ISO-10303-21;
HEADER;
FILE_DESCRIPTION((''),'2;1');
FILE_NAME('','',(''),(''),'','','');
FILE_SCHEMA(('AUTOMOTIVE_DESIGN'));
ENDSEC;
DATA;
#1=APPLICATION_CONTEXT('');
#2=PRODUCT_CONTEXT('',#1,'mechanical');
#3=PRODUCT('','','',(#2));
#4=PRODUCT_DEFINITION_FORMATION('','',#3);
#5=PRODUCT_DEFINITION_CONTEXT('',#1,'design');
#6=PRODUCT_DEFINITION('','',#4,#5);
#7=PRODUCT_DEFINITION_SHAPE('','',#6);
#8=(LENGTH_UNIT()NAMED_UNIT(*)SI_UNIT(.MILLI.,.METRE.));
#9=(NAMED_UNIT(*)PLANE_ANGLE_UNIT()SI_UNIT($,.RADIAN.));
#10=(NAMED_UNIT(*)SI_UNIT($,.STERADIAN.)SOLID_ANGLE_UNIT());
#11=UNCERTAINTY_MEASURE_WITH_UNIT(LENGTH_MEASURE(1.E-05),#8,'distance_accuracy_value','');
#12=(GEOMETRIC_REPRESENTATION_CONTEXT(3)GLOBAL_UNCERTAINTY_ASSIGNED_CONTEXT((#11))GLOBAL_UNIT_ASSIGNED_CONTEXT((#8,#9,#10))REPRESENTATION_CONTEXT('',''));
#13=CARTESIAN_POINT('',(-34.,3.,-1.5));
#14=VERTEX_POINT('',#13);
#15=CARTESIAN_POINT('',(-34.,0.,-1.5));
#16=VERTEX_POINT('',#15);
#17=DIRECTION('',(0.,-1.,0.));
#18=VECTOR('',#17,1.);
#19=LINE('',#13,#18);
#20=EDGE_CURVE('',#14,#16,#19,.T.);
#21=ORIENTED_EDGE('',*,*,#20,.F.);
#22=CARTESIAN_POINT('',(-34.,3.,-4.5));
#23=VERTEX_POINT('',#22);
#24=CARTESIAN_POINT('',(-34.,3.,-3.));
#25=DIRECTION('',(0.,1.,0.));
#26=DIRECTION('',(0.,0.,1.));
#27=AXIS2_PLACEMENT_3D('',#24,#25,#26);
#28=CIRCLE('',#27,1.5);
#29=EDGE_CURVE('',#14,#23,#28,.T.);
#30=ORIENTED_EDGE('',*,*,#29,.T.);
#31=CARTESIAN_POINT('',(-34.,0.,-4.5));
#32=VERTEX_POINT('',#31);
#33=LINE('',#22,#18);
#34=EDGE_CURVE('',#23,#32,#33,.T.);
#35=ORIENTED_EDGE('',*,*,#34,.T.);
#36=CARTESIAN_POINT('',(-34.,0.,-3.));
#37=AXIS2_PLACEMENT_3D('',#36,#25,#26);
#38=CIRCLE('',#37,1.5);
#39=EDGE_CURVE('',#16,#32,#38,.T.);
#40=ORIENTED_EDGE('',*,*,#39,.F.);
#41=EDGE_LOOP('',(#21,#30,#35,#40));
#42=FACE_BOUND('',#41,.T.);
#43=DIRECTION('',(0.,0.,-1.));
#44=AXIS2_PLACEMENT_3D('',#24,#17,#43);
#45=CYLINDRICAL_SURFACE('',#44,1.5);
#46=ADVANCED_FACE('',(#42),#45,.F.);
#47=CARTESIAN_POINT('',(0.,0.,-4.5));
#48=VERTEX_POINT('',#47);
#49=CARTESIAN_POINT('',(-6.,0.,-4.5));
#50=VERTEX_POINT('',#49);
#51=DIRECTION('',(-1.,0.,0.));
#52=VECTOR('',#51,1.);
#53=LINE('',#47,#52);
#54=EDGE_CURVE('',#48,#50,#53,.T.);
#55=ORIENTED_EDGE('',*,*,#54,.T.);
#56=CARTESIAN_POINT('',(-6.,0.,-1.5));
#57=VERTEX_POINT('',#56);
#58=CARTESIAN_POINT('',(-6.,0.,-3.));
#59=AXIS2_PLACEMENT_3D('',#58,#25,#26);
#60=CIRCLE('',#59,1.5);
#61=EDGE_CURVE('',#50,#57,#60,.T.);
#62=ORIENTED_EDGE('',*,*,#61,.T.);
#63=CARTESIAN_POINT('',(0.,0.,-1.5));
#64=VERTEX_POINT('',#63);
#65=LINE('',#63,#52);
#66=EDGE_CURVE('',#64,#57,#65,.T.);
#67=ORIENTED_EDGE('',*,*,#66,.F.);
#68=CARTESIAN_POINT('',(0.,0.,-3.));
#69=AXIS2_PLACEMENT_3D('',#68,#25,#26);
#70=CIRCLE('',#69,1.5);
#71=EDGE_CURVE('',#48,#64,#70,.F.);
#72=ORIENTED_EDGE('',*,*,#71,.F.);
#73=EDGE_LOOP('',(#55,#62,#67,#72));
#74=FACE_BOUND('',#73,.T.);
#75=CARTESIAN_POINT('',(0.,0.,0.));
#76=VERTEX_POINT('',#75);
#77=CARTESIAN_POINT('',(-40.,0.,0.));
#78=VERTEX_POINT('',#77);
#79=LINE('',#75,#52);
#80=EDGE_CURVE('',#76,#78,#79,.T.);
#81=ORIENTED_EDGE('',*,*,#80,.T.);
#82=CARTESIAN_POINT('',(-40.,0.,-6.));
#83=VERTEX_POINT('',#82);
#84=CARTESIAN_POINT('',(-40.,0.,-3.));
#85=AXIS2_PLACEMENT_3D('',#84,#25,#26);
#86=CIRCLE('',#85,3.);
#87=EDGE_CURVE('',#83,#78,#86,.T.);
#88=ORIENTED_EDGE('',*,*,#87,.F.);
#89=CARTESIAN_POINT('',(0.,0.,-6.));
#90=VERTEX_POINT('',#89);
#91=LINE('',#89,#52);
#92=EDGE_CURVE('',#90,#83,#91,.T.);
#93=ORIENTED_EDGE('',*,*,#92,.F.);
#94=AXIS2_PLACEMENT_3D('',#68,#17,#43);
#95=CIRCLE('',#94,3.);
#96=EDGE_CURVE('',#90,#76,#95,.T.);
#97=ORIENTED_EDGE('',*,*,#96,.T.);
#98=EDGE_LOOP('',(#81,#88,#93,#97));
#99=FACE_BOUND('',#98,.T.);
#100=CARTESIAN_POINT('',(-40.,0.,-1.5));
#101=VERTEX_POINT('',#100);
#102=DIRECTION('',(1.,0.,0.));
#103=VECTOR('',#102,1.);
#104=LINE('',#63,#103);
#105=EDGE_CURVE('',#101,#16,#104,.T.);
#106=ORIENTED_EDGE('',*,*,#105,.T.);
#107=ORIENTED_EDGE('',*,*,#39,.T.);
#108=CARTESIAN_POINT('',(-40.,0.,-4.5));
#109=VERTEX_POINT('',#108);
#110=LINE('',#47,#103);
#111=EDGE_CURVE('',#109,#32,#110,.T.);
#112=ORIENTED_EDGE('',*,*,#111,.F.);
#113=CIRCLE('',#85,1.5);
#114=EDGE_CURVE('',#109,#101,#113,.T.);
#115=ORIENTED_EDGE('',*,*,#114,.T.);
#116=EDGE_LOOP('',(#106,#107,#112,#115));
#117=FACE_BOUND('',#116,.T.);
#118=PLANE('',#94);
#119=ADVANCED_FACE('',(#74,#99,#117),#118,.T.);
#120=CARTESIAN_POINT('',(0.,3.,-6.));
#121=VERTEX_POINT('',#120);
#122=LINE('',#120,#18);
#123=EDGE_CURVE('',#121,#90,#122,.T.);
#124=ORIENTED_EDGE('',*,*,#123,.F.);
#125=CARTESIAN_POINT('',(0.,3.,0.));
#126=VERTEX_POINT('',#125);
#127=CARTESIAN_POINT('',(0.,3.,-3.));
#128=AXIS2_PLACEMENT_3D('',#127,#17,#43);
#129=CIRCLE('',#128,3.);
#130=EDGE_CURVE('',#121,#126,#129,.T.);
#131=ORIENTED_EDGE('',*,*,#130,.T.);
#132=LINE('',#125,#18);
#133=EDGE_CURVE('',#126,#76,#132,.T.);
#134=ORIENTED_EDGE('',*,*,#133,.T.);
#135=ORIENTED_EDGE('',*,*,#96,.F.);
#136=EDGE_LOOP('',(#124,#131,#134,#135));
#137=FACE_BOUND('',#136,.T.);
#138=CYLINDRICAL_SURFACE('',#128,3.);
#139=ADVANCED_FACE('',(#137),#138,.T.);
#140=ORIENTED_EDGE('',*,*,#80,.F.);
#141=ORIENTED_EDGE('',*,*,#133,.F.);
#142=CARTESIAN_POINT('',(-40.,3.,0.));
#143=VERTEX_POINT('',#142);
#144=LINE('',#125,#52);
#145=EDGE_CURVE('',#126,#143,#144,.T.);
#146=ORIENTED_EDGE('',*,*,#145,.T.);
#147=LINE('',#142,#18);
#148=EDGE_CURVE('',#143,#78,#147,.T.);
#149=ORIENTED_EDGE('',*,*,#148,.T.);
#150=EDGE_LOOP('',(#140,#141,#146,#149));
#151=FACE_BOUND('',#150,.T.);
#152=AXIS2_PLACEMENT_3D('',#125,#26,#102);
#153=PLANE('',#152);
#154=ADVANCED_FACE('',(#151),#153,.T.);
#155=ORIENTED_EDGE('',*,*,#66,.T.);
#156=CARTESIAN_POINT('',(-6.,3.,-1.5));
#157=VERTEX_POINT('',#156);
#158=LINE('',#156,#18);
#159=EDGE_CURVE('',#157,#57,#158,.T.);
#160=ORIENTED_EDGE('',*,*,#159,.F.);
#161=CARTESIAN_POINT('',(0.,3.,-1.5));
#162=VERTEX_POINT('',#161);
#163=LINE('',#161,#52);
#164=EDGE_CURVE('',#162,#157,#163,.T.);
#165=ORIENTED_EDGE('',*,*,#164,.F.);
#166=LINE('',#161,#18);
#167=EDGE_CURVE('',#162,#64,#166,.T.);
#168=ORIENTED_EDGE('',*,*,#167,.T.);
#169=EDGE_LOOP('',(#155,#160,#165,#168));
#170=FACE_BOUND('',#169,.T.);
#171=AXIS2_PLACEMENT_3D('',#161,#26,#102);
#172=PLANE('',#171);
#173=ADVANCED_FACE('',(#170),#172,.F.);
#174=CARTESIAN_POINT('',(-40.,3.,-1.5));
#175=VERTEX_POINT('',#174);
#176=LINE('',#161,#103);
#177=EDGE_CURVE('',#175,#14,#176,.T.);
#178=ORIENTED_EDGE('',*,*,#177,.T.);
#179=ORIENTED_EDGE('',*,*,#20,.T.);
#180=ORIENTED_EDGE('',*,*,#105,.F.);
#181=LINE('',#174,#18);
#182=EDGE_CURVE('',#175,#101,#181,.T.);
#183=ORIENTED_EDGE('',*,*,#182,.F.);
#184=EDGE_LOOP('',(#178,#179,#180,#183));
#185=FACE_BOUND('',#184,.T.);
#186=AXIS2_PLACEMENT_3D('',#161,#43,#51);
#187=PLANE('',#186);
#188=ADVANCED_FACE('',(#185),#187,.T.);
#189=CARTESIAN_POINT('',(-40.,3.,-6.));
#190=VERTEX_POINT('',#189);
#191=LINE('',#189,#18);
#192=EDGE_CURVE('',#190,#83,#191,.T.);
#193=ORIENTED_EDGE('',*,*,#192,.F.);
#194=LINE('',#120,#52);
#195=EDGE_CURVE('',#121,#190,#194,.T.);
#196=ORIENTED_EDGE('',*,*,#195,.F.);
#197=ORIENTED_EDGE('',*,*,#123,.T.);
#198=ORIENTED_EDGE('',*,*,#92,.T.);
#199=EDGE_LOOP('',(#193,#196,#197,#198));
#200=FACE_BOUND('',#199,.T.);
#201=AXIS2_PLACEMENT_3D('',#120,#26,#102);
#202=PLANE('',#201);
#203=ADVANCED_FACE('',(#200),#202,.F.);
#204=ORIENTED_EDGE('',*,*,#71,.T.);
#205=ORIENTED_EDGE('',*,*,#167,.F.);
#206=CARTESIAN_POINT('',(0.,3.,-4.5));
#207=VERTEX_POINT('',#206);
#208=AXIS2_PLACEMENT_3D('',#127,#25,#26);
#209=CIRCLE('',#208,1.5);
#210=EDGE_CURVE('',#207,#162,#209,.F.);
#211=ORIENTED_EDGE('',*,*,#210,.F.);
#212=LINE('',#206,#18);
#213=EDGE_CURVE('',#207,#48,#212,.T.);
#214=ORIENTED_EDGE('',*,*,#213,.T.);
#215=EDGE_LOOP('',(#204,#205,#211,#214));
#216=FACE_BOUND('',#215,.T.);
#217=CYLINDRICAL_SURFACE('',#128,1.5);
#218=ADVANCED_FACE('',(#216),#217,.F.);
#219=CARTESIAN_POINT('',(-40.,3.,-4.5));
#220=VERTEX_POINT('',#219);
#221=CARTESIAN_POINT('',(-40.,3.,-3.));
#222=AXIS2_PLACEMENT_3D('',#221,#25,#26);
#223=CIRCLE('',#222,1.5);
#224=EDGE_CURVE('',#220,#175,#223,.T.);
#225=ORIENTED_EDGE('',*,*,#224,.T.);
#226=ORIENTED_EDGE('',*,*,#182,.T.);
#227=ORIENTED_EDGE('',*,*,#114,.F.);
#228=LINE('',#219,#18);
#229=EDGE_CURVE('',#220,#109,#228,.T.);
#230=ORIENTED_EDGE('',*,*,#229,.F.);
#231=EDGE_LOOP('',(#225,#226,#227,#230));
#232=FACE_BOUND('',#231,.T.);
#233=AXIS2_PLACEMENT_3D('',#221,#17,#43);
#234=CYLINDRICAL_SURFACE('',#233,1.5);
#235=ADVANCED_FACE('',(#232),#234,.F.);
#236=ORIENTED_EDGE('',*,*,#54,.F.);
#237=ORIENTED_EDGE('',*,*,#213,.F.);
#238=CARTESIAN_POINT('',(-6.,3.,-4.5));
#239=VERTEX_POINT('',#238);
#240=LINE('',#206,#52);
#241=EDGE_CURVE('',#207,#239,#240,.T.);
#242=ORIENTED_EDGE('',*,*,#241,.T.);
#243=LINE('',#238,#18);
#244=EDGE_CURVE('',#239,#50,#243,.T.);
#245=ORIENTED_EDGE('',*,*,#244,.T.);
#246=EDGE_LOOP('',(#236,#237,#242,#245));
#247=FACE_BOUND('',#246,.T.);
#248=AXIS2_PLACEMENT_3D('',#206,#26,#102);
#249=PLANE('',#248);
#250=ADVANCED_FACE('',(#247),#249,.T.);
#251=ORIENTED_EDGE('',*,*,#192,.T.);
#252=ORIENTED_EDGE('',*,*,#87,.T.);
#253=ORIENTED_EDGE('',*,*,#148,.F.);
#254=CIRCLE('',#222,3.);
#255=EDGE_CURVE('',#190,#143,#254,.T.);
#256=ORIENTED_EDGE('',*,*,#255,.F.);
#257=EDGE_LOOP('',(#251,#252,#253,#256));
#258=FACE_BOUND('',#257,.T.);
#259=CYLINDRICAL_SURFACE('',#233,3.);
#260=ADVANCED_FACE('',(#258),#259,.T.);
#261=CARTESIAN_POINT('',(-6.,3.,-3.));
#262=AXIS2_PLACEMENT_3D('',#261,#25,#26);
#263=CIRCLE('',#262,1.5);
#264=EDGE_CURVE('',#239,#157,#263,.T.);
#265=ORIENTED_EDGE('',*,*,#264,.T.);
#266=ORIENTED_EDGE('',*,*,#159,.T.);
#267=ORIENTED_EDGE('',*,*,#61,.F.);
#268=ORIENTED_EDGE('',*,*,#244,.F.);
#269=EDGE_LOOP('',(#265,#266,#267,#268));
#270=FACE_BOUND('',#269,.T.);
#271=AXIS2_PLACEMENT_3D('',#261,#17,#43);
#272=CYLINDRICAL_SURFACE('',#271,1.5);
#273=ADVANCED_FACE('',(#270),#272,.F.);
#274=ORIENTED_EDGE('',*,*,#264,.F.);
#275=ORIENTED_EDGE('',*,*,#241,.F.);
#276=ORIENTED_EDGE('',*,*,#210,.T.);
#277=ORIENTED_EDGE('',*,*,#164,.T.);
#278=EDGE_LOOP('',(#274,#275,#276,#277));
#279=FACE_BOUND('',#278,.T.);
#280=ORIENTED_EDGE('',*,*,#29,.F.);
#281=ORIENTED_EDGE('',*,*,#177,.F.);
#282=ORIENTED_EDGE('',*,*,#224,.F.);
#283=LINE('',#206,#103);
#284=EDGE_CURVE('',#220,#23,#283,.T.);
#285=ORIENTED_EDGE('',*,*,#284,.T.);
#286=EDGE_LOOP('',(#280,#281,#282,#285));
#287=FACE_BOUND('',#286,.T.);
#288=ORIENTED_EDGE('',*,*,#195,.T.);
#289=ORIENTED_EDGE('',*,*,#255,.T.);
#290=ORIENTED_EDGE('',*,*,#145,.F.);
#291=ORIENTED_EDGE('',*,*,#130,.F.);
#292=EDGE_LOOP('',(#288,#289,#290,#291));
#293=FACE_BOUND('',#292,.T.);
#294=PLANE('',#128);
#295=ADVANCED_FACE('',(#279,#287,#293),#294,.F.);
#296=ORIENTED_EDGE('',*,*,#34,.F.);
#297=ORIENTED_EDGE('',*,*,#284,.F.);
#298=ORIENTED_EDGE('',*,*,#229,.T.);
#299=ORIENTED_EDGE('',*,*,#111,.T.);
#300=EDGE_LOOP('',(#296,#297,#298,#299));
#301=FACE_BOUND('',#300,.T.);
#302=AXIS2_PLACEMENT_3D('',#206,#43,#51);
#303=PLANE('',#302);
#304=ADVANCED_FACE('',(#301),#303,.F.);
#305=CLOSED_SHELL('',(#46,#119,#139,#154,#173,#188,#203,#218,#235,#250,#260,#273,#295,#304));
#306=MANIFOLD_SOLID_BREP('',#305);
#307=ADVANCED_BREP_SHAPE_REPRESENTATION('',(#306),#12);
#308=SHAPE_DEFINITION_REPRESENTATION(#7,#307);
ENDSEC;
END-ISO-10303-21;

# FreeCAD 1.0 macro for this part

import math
import FreeCAD as App
import Part
import Sketcher
Q = App.Units.Quantity

doc = App.newDocument("Part")
params = doc.addObject("Spreadsheet::Sheet", "Params")
for row, (alias, value) in enumerate([
    ("sketch1_radius", "3 mm"),
    ("sketch1_radius2", "1.5 mm"),
    ("sketch1_width", "40 mm"),
    ("sketch1_width2", "6 mm"),
    ("pad1_length", "3 mm"),
], start=1):
    params.set(f"A{row}", alias)
    params.set(f"B{row}", "=" + value)
    params.setAlias(f"B{row}", alias)

body = doc.addObject("PartDesign::Body", "Body")

# Sketch on XZ plane
sketch1 = body.newObject("Sketcher::SketchObject", "Sketch")
sketch1.AttachmentSupport = (doc.getObject("XZ_Plane"), [""])
sketch1.MapMode = "FlatFace"
sketch1.addGeometry([
    Part.LineSegment(App.Vector(-40, 0, 0), App.Vector(0, 0, 0)),  # 0
    Part.ArcOfCircle(Part.Circle(App.Vector(0, -3, 0), App.Vector(0, 0, 1), 3), math.radians(-90), math.radians(90)),  # 1
    Part.LineSegment(App.Vector(0, -6, 0), App.Vector(-40, -6, 0)),  # 2
    Part.ArcOfCircle(Part.Circle(App.Vector(-40, -3, 0), App.Vector(0, 0, 1), 3), math.radians(90), math.radians(270)),  # 3
    Part.LineSegment(App.Vector(0, -1.5, 0), App.Vector(-6, -1.5, 0)),  # 4
    Part.ArcOfCircle(Part.Circle(App.Vector(-6, -3, 0), App.Vector(0, 0, 1), 1.5), math.radians(90), math.radians(270)),  # 5
    Part.LineSegment(App.Vector(-6, -4.5, 0), App.Vector(0, -4.5, 0)),  # 6
    Part.ArcOfCircle(Part.Circle(App.Vector(0, -3, 0), App.Vector(0, 0, 1), 1.5), math.radians(-90), math.radians(90)),  # 7
    Part.LineSegment(App.Vector(-40, -4.5, 0), App.Vector(-34, -4.5, 0)),  # 8
    Part.ArcOfCircle(Part.Circle(App.Vector(-34, -3, 0), App.Vector(0, 0, 1), 1.5), math.radians(-90), math.radians(90)),  # 9
    Part.LineSegment(App.Vector(-34, -1.5, 0), App.Vector(-40, -1.5, 0)),  # 10
    Part.ArcOfCircle(Part.Circle(App.Vector(-40, -3, 0), App.Vector(0, 0, 1), 1.5), math.radians(90), math.radians(270)),  # 11
], False)
sketch1.addConstraint([
    Sketcher.Constraint("Tangent", 0, 2, 1, 2),
    Sketcher.Constraint("Tangent", 1, 1, 2, 1),
    Sketcher.Constraint("Tangent", 2, 2, 3, 2),
    Sketcher.Constraint("Tangent", 3, 1, 0, 1),
    Sketcher.Constraint("Tangent", 4, 2, 5, 1),
    Sketcher.Constraint("Tangent", 5, 2, 6, 1),
    Sketcher.Constraint("Tangent", 6, 2, 7, 1),
    Sketcher.Constraint("Tangent", 7, 2, 4, 1),
    Sketcher.Constraint("Tangent", 8, 2, 9, 1),
    Sketcher.Constraint("Tangent", 9, 2, 10, 1),
    Sketcher.Constraint("Tangent", 10, 2, 11, 1),
    Sketcher.Constraint("Tangent", 11, 2, 8, 1),
    Sketcher.Constraint("Horizontal", 0),
    Sketcher.Constraint("Horizontal", 2),
    Sketcher.Constraint("Horizontal", 4),
    Sketcher.Constraint("Horizontal", 6),
    Sketcher.Constraint("Horizontal", 8),
    Sketcher.Constraint("Horizontal", 10),
    Sketcher.Constraint("Coincident", 0, 2, -1, 1),
    Sketcher.Constraint("Coincident", 7, 3, 1, 3),
    Sketcher.Constraint("Coincident", 11, 3, 3, 3),
    Sketcher.Constraint("Equal", 7, 9),
    Sketcher.Constraint("Equal", 6, 8),
    Sketcher.Constraint("Radius", 1, Q("3 mm")),
    Sketcher.Constraint("Radius", 5, Q("1.5 mm")),
    Sketcher.Constraint("DistanceX", 0, 1, 0, 2, Q("40 mm")),
    Sketcher.Constraint("DistanceX", 4, 2, 4, 1, Q("6 mm")),
])
sketch1.setExpression("Constraints[23]", "Params.sketch1_radius")
sketch1.setExpression("Constraints[24]", "Params.sketch1_radius2")
sketch1.setExpression("Constraints[25]", "Params.sketch1_width")
sketch1.setExpression("Constraints[26]", "Params.sketch1_width2")
pad1 = body.newObject("PartDesign::Pad", "Pad")
pad1.Profile = sketch1
pad1.setExpression("Length", "Params.pad1_length")
pad1.Reversed = True

doc.recompute()
